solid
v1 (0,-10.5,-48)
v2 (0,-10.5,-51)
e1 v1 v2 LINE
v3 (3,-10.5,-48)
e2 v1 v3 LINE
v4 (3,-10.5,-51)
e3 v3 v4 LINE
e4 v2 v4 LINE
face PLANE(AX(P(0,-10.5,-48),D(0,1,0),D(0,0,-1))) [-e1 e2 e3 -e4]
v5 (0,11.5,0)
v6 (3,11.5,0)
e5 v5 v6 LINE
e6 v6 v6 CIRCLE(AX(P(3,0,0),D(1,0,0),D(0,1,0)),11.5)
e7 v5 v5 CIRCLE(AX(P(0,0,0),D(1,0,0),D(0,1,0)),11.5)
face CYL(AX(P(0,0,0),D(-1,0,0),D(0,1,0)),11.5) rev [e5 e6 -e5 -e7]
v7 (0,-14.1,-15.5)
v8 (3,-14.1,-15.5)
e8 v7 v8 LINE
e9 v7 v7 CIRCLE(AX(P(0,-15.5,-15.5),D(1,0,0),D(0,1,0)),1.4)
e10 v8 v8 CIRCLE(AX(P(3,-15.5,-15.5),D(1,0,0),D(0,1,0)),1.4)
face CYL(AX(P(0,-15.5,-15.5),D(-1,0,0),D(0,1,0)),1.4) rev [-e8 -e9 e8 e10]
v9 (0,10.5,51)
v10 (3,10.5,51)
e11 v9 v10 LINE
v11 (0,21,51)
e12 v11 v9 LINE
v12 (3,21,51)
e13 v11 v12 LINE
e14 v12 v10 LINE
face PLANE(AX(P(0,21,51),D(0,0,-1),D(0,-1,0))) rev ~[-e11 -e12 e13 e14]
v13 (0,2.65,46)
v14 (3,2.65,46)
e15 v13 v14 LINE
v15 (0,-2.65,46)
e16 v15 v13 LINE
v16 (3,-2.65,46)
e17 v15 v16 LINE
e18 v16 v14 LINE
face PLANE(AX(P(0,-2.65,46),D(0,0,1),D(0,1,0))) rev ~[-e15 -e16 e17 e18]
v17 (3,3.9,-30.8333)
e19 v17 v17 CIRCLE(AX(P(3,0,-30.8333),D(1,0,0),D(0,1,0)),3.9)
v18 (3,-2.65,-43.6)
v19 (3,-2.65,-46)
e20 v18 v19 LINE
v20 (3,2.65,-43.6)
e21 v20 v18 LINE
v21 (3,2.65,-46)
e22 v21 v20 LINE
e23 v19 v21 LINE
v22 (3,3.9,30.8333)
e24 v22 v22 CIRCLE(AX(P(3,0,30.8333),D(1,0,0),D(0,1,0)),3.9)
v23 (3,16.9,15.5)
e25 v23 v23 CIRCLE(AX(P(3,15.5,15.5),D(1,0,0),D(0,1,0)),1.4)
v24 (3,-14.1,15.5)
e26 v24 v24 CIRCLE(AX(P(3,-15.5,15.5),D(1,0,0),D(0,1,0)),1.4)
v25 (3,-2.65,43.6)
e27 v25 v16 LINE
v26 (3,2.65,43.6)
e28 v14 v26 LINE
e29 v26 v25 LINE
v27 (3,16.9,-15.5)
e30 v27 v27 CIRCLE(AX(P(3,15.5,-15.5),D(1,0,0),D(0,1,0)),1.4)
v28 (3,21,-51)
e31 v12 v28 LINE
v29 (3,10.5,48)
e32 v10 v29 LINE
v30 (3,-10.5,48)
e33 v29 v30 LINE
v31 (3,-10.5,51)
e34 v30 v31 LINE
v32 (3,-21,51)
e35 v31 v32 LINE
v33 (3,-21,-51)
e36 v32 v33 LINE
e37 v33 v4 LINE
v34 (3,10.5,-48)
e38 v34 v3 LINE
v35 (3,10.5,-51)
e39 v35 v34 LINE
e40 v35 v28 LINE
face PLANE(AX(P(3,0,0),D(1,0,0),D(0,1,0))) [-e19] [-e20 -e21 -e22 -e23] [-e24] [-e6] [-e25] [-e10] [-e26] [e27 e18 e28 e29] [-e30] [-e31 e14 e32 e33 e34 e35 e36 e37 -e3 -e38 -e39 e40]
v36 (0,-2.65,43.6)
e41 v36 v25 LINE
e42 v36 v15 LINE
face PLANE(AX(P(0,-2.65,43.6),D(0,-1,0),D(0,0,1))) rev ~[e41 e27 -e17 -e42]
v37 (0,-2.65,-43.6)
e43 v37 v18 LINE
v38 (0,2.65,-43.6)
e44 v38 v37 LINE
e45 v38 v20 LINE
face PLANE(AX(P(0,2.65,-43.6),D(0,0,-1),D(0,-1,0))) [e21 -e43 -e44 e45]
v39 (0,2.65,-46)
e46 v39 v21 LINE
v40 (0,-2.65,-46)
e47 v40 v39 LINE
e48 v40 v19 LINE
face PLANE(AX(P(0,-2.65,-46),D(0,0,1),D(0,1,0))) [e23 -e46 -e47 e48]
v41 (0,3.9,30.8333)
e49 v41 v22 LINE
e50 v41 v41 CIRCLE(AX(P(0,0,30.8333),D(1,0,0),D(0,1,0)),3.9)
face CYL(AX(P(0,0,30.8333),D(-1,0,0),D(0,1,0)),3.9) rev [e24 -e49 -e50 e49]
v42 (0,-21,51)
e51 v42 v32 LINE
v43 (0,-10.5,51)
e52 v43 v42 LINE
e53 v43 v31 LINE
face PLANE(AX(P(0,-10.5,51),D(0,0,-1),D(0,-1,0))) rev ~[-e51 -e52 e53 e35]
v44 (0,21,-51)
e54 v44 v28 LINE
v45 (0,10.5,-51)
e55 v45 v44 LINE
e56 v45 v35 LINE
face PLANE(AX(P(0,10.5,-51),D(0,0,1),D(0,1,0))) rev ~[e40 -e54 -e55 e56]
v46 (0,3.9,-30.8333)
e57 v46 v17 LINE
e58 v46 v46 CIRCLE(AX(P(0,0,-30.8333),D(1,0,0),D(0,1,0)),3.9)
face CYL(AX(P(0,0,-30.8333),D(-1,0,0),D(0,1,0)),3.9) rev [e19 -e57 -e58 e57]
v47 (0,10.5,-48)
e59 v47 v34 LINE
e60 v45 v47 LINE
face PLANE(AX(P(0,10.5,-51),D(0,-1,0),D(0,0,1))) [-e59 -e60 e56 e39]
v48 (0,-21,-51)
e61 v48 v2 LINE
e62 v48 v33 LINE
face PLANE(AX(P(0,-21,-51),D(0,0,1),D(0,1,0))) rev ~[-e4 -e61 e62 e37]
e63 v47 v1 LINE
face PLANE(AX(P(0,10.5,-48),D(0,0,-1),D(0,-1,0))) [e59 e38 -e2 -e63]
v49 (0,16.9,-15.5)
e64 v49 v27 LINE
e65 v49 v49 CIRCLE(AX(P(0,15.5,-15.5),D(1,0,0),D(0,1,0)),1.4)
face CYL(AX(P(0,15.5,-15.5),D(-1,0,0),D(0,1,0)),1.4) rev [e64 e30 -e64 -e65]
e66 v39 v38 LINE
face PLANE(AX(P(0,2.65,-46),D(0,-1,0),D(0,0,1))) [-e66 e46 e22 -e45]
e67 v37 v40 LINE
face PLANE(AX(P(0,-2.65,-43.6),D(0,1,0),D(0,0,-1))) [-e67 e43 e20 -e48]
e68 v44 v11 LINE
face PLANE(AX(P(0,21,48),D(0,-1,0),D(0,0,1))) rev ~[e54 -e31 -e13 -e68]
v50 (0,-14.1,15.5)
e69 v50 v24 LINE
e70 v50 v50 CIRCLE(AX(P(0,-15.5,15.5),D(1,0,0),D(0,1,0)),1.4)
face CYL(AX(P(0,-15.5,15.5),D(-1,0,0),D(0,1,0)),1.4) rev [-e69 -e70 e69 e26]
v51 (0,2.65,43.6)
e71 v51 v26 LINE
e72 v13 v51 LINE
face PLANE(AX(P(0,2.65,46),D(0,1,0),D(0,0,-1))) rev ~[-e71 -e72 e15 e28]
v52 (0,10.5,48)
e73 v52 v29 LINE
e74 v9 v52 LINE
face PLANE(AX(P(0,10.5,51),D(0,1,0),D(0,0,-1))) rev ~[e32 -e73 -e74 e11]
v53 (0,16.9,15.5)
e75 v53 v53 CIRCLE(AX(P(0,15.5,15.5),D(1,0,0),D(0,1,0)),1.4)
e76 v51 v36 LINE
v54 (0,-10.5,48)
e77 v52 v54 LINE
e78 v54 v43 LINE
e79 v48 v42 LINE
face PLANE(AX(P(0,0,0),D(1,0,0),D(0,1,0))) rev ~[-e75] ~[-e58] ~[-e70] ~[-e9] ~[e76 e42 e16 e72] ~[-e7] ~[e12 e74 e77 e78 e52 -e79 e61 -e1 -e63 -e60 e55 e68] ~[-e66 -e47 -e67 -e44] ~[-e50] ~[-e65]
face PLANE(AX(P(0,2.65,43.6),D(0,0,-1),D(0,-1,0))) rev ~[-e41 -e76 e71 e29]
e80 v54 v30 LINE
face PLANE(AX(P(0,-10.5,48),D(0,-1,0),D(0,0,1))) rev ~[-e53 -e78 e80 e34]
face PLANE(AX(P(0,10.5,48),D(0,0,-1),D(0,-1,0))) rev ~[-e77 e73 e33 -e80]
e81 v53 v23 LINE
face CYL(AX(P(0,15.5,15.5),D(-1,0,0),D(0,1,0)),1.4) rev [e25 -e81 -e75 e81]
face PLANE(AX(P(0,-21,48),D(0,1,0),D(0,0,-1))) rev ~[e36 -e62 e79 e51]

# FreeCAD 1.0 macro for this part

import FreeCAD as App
import Part
import Sketcher
from FreeCAD import Vector

doc = App.newDocument("Part")
body = doc.addObject("PartDesign::Body", "Body")

sketch1 = body.newObject("Sketcher::SketchObject", "Sketch")
sketch1.AttachmentSupport = (doc.getObject("YZ_Plane"), [""])
sketch1.MapMode = "FlatFace"
sketch1.addGeometry([
    Part.LineSegment(Vector(21, 51, 0), Vector(10.5, 51, 0)),
    Part.LineSegment(Vector(10.5, 51, 0), Vector(10.5, 48, 0)),
    Part.LineSegment(Vector(10.5, 48, 0), Vector(-10.5, 48, 0)),
    Part.LineSegment(Vector(-10.5, 48, 0), Vector(-10.5, 51, 0)),
    Part.LineSegment(Vector(-10.5, 51, 0), Vector(-21, 51, 0)),
    Part.LineSegment(Vector(-21, 51, 0), Vector(-21, -51, 0)),
    Part.LineSegment(Vector(-21, -51, 0), Vector(-10.5, -51, 0)),
    Part.LineSegment(Vector(-10.5, -51, 0), Vector(-10.5, -48, 0)),
    Part.LineSegment(Vector(-10.5, -48, 0), Vector(10.5, -48, 0)),
    Part.LineSegment(Vector(10.5, -48, 0), Vector(10.5, -51, 0)),
    Part.LineSegment(Vector(10.5, -51, 0), Vector(21, -51, 0)),
    Part.LineSegment(Vector(21, -51, 0), Vector(21, 51, 0)),
    Part.LineSegment(Vector(2.65, 43.6, 0), Vector(-2.65, 43.6, 0)),
    Part.LineSegment(Vector(-2.65, 43.6, 0), Vector(-2.65, 46, 0)),
    Part.LineSegment(Vector(-2.65, 46, 0), Vector(2.65, 46, 0)),
    Part.LineSegment(Vector(2.65, 46, 0), Vector(2.65, 43.6, 0)),
    Part.Circle(Vector(-15.5, -15.5, 0), Vector(0, 0, 1), 1.4),
    Part.LineSegment(Vector(-2.65, -43.6, 0), Vector(2.65, -43.6, 0)),
    Part.LineSegment(Vector(2.65, -43.6, 0), Vector(2.65, -46, 0)),
    Part.LineSegment(Vector(2.65, -46, 0), Vector(-2.65, -46, 0)),
    Part.LineSegment(Vector(-2.65, -46, 0), Vector(-2.65, -43.6, 0)),
    Part.Circle(Vector(0, -30.8333, 0), Vector(0, 0, 1), 3.9),
    Part.Circle(Vector(15.5, -15.5, 0), Vector(0, 0, 1), 1.4),
    Part.Circle(Vector(-15.5, 15.5, 0), Vector(0, 0, 1), 1.4),
    Part.Circle(Vector(0, 0, 0), Vector(0, 0, 1), 11.5),
    Part.Circle(Vector(15.5, 15.5, 0), Vector(0, 0, 1), 1.4),
    Part.Circle(Vector(0, 30.8333, 0), Vector(0, 0, 1), 3.9),
], False)
sketch1.addConstraint([
    Sketcher.Constraint("Coincident", 0, 2, 1, 1),
    Sketcher.Constraint("Coincident", 1, 2, 2, 1),
    Sketcher.Constraint("Coincident", 2, 2, 3, 1),
    Sketcher.Constraint("Coincident", 3, 2, 4, 1),
    Sketcher.Constraint("Coincident", 4, 2, 5, 1),
    Sketcher.Constraint("Coincident", 5, 2, 6, 1),
    Sketcher.Constraint("Coincident", 6, 2, 7, 1),
    Sketcher.Constraint("Coincident", 7, 2, 8, 1),
    Sketcher.Constraint("Coincident", 8, 2, 9, 1),
    Sketcher.Constraint("Coincident", 9, 2, 10, 1),
    Sketcher.Constraint("Coincident", 10, 2, 11, 1),
    Sketcher.Constraint("Coincident", 11, 2, 0, 1),
    Sketcher.Constraint("Coincident", 12, 2, 13, 1),
    Sketcher.Constraint("Coincident", 13, 2, 14, 1),
    Sketcher.Constraint("Coincident", 14, 2, 15, 1),
    Sketcher.Constraint("Coincident", 15, 2, 12, 1),
    Sketcher.Constraint("Coincident", 17, 2, 18, 1),
    Sketcher.Constraint("Coincident", 18, 2, 19, 1),
    Sketcher.Constraint("Coincident", 19, 2, 20, 1),
    Sketcher.Constraint("Coincident", 20, 2, 17, 1),
    Sketcher.Constraint("Horizontal", 0),
    Sketcher.Constraint("Vertical", 1),
    Sketcher.Constraint("Horizontal", 2),
    Sketcher.Constraint("Vertical", 3),
    Sketcher.Constraint("Horizontal", 4),
    Sketcher.Constraint("Vertical", 5),
    Sketcher.Constraint("Horizontal", 6),
    Sketcher.Constraint("Vertical", 7),
    Sketcher.Constraint("Horizontal", 8),
    Sketcher.Constraint("Vertical", 9),
    Sketcher.Constraint("Horizontal", 10),
    Sketcher.Constraint("Vertical", 11),
    Sketcher.Constraint("Horizontal", 12),
    Sketcher.Constraint("Vertical", 13),
    Sketcher.Constraint("Horizontal", 14),
    Sketcher.Constraint("Vertical", 15),
    Sketcher.Constraint("Horizontal", 17),
    Sketcher.Constraint("Vertical", 18),
    Sketcher.Constraint("Horizontal", 19),
    Sketcher.Constraint("Vertical", 20),
    Sketcher.Constraint("Coincident", 24, 3, -1, 1),
    Sketcher.Constraint("Equal", 16, 22),
    Sketcher.Constraint("Equal", 22, 23),
    Sketcher.Constraint("Equal", 23, 25),
    Sketcher.Constraint("Equal", 21, 26),
    Sketcher.Constraint("Symmetric", 22, 3, 23, 3, -1, 1),
    Sketcher.Constraint("Symmetric", 16, 3, 25, 3, -1, 1),
    Sketcher.Constraint("Symmetric", 21, 3, 26, 3, -1, 1),
    Sketcher.Constraint("Symmetric", 0, 2, 6, 2, -1, 1),
    Sketcher.Constraint("Symmetric", 2, 2, 8, 2, -1, 1),
    Sketcher.Constraint("Symmetric", 4, 2, 10, 2, -1, 1),
    Sketcher.Constraint("Symmetric", 12, 2, 17, 2, -1, 1),
    Sketcher.Constraint("Symmetric", 14, 2, 19, 2, -1, 1),
    Sketcher.Constraint("Symmetric", 16, 3, 22, 3, -2),
    Sketcher.Constraint("Symmetric", 0, 2, 3, 2, -2),
    Sketcher.Constraint("PointOnObject", 21, 3, -2),
    Sketcher.Constraint("Vertical", 15, 2, 17, 2),
    Sketcher.Constraint("Diameter", 24, 23.0),
    Sketcher.Constraint("Diameter", 16, 2.8),
    Sketcher.Constraint("Diameter", 21, 7.8),
    Sketcher.Constraint("DistanceX", 2, 2, 2, 1, 21.0),
    Sketcher.Constraint("DistanceY", 1, 2, 1, 1, 3.0),
    Sketcher.Constraint("DistanceY", 5, 2, 5, 1, 102.0),
    Sketcher.Constraint("DistanceX", 12, 2, 12, 1, 5.3),
    Sketcher.Constraint("DistanceY", 13, 1, 13, 2, 2.4),
    Sketcher.Constraint("DistanceX", 4, 2, -1, 1, 21.0),
    Sketcher.Constraint("DistanceX", 0, 2, 25, 3, 5.0),
    Sketcher.Constraint("DistanceY", 13, 2, 3, 2, 5.0),
    Sketcher.Constraint("DistanceY", 16, 3, 23, 3, 31.0),
    Sketcher.Constraint("DistanceY", 21, 3, -1, 1, 30.8333),
])
pad1 = body.newObject("PartDesign::Pad", "Pad")
pad1.Profile = sketch1
pad1.Length = 3

doc.recompute()
